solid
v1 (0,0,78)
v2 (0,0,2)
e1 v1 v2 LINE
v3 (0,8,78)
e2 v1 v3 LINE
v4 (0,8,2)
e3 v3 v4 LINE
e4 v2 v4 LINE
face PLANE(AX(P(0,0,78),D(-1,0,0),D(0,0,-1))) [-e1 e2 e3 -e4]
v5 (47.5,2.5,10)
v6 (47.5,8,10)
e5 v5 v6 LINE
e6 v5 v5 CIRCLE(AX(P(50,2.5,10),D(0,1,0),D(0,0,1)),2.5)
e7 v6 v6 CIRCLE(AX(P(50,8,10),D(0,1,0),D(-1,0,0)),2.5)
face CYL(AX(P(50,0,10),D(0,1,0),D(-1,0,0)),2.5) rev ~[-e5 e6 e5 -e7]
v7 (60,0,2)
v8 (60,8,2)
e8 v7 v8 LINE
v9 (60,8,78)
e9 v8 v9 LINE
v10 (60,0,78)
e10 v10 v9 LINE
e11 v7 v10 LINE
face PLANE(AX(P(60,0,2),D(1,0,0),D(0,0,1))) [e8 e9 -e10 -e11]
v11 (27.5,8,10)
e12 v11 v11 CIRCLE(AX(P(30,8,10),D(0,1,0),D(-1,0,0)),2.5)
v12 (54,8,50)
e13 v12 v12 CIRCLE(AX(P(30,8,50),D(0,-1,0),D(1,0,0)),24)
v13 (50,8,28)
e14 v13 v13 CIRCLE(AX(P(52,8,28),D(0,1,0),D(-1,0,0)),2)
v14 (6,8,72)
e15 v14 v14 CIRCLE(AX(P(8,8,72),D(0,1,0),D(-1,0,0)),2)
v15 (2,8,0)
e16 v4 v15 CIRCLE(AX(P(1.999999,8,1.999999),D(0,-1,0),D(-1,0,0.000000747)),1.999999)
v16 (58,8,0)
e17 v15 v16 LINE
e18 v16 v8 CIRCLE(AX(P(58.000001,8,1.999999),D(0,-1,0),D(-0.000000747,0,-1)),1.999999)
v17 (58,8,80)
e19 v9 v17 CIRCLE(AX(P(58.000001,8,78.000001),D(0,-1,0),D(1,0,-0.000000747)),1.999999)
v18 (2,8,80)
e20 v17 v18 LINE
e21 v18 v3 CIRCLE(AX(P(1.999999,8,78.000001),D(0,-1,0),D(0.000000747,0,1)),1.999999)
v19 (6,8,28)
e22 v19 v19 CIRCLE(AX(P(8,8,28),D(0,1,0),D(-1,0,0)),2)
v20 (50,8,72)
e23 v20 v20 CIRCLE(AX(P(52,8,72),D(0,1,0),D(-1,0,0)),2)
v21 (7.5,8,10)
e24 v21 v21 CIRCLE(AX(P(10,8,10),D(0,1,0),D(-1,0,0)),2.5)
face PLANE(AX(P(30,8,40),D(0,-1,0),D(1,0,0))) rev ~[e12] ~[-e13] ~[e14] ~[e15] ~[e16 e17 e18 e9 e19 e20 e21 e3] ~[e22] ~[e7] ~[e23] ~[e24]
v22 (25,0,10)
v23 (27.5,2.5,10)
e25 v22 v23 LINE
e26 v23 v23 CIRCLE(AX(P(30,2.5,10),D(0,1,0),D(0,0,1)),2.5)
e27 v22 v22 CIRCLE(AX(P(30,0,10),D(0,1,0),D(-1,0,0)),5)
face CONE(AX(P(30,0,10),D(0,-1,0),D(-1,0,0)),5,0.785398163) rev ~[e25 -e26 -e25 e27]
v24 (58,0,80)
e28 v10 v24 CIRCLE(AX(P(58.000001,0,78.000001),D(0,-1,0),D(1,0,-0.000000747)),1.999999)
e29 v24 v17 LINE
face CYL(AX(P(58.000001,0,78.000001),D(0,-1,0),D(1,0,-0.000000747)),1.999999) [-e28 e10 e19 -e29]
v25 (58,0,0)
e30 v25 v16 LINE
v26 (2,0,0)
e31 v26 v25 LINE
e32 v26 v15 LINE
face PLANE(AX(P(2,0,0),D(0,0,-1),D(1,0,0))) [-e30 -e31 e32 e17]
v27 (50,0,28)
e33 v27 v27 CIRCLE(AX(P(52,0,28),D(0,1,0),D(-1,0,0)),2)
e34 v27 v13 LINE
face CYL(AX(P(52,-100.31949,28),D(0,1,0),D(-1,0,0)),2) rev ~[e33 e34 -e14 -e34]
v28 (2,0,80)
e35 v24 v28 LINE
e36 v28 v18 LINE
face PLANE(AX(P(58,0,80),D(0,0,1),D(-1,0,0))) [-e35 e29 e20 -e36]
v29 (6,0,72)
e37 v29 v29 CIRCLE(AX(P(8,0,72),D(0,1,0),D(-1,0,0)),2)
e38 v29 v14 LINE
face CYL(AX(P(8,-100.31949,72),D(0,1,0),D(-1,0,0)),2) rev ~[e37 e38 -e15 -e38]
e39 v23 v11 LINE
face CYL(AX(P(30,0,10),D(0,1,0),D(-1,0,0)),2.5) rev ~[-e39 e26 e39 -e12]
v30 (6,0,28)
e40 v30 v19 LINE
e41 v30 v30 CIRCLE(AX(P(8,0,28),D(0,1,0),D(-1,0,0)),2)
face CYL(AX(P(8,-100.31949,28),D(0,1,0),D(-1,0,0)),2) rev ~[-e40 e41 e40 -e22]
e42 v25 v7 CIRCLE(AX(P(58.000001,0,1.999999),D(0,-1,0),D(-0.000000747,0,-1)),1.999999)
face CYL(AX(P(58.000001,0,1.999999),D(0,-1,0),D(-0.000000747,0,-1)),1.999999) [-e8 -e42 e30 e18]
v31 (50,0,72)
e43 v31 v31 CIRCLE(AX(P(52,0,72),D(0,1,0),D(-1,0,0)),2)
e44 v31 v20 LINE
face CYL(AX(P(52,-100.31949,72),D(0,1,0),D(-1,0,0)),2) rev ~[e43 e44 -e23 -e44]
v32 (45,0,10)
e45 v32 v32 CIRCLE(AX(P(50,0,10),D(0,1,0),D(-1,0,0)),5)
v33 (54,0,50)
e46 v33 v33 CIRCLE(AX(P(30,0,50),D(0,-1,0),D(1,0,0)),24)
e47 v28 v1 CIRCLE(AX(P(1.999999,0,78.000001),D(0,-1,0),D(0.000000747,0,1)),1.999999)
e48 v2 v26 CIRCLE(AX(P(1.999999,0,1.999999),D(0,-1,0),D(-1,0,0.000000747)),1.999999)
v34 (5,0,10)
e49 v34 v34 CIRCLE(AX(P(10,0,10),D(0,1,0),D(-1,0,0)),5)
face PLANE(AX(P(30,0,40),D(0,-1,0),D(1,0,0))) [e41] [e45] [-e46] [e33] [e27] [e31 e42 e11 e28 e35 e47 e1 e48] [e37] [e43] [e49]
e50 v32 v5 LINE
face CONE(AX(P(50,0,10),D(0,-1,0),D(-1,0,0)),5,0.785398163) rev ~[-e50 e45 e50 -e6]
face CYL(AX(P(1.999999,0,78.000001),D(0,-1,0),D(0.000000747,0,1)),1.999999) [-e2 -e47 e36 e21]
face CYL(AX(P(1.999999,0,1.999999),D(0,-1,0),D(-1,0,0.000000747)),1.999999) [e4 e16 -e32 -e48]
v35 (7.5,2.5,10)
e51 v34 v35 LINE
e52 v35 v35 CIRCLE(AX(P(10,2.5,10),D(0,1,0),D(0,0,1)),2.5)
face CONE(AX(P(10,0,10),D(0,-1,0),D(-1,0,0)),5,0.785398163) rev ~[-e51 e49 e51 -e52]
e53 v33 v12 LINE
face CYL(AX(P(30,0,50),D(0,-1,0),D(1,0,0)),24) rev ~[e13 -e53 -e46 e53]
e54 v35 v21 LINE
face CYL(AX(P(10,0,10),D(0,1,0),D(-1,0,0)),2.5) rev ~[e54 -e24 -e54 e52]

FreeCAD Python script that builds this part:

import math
import FreeCAD as App
import Part
import Sketcher
from FreeCAD import Vector

doc = App.newDocument("Part")
params = doc.addObject("Spreadsheet::Sheet", "Params")
for row, (alias, value) in enumerate([
    ("sketch1_diameter", "48 mm"),
    ("sketch1_radius", "1.999999 mm"),
    ("sketch1_width", "56 mm"),
    ("sketch1_height", "76 mm"),
    ("pad1_length", "8 mm"),
    ("sketch2_diameter", "5 mm"),
    ("hole_diameter", "5 mm"),
    ("hole_csink_diameter", "10 mm"),
    ("sketch3_diameter", "4 mm"),
    ("hole2_diameter", "4 mm"),
], start=1):
    params.set(f"A{row}", alias)
    params.set(f"B{row}", "=" + value)
    params.setAlias(f"B{row}", alias)

body = doc.addObject("PartDesign::Body", "Body")

# Sketch on XZ plane
sketch1 = body.newObject("Sketcher::SketchObject", "Sketch")
sketch1.AttachmentSupport = (doc.getObject("XZ_Plane"), [""])
sketch1.MapMode = "FlatFace"
sketch1.addGeometry([
    Part.ArcOfCircle(Part.Circle(Vector(2, 2, 0), Vector(0, 0, 1), 2), math.radians(180), math.radians(270)),  # 0
    Part.LineSegment(Vector(2, 0, 0), Vector(58, 0, 0)),  # 1
    Part.ArcOfCircle(Part.Circle(Vector(58, 2, 0), Vector(0, 0, 1), 2), math.radians(-90), math.radians(0)),  # 2
    Part.LineSegment(Vector(60, 2, 0), Vector(60, 78, 0)),  # 3
    Part.ArcOfCircle(Part.Circle(Vector(58, 78, 0), Vector(0, 0, 1), 2), math.radians(0), math.radians(90)),  # 4
    Part.LineSegment(Vector(58, 80, 0), Vector(2, 80, 0)),  # 5
    Part.ArcOfCircle(Part.Circle(Vector(2, 78, 0), Vector(0, 0, 1), 2), math.radians(90), math.radians(180)),  # 6
    Part.LineSegment(Vector(0, 78, 0), Vector(0, 2, 0)),  # 7
    Part.Circle(Vector(30, 50, 0), Vector(0, 0, 1), 24),  # 8
], False)
sketch1.addConstraint([
    Sketcher.Constraint("Tangent", 0, 2, 1, 1),
    Sketcher.Constraint("Tangent", 1, 2, 2, 1),
    Sketcher.Constraint("Tangent", 2, 2, 3, 1),
    Sketcher.Constraint("Tangent", 3, 2, 4, 1),
    Sketcher.Constraint("Tangent", 4, 2, 5, 1),
    Sketcher.Constraint("Tangent", 5, 2, 6, 1),
    Sketcher.Constraint("Tangent", 6, 2, 7, 1),
    Sketcher.Constraint("Tangent", 7, 2, 0, 1),
    Sketcher.Constraint("Horizontal", 1),
    Sketcher.Constraint("Vertical", 3),
    Sketcher.Constraint("Horizontal", 5),
    Sketcher.Constraint("Vertical", 7),
    Sketcher.Constraint("Equal", 0, 2),
    Sketcher.Constraint("Equal", 2, 4),
    Sketcher.Constraint("Equal", 4, 6),
    Sketcher.Constraint("PointOnObject", 0, 2, -1),
    Sketcher.Constraint("PointOnObject", 6, 2, -2),
    Sketcher.Constraint("Diameter", 8, 48.0),
    Sketcher.Constraint("Radius", 0, 1.999999),
    Sketcher.Constraint("DistanceX", 1, 1, 1, 2, 56.0),
    Sketcher.Constraint("DistanceY", 3, 1, 3, 2, 76.0),
    Sketcher.Constraint("DistanceX", -1, 1, 8, 3, 30.0),
    Sketcher.Constraint("DistanceY", -1, 1, 8, 3, 50.0),
])
sketch1.setExpression("Constraints[17]", "Params.sketch1_diameter")
sketch1.setExpression("Constraints[18]", "Params.sketch1_radius")
sketch1.setExpression("Constraints[19]", "Params.sketch1_width")
sketch1.setExpression("Constraints[20]", "Params.sketch1_height")
pad1 = body.newObject("PartDesign::Pad", "Pad")
pad1.Profile = sketch1
pad1.setExpression("Length", "Params.pad1_length")
pad1.Reversed = True

# Sketch on XZ plane
sketch2 = body.newObject("Sketcher::SketchObject", "Sketch001")
sketch2.AttachmentSupport = (doc.getObject("XZ_Plane"), [""])
sketch2.MapMode = "FlatFace"
sketch2.addGeometry([
    Part.Circle(Vector(10, 10, 0), Vector(0, 0, 1), 2.5),
    Part.Circle(Vector(30, 10, 0), Vector(0, 0, 1), 2.5),
    Part.Circle(Vector(50, 10, 0), Vector(0, 0, 1), 2.5),
], False)
sketch2.addConstraint([
    Sketcher.Constraint("Equal", 0, 1),
    Sketcher.Constraint("Equal", 1, 2),
    Sketcher.Constraint("Horizontal", 0, 3, 1, 3),
    Sketcher.Constraint("Horizontal", 1, 3, 2, 3),
    Sketcher.Constraint("Diameter", 0, 5.0),
    Sketcher.Constraint("DistanceX", -1, 1, 0, 3, 10.0),
    Sketcher.Constraint("DistanceY", -1, 1, 0, 3, 10.0),
    Sketcher.Constraint("DistanceX", -1, 1, 1, 3, 30.0),
    Sketcher.Constraint("DistanceX", -1, 1, 2, 3, 50.0),
])
sketch2.setExpression("Constraints[4]", "Params.sketch2_diameter")
doc.recompute()
hole = body.newObject("PartDesign::Hole", "Hole")
hole.Profile = sketch2
hole.ThreadType = "None"
hole.setExpression("Diameter", "Params.hole_diameter")
hole.DepthType = "ThroughAll"
hole.HoleCutType = "Countersink"
hole.setExpression("HoleCutDiameter", "Params.hole_csink_diameter")
hole.HoleCutCountersinkAngle = 90

# Sketch on XZ plane
sketch3 = body.newObject("Sketcher::SketchObject", "Sketch002")
sketch3.AttachmentSupport = (doc.getObject("XZ_Plane"), [""])
sketch3.MapMode = "FlatFace"
sketch3.addGeometry([
    Part.Circle(Vector(8, 72, 0), Vector(0, 0, 1), 2),
    Part.Circle(Vector(52, 72, 0), Vector(0, 0, 1), 2),
    Part.Circle(Vector(52, 28, 0), Vector(0, 0, 1), 2),
    Part.Circle(Vector(8, 28, 0), Vector(0, 0, 1), 2),
], False)
sketch3.addConstraint([
    Sketcher.Constraint("Equal", 0, 1),
    Sketcher.Constraint("Equal", 1, 2),
    Sketcher.Constraint("Equal", 2, 3),
    Sketcher.Constraint("Horizontal", 0, 3, 1, 3),
    Sketcher.Constraint("Horizontal", 2, 3, 3, 3),
    Sketcher.Constraint("Vertical", 1, 3, 2, 3),
    Sketcher.Constraint("Vertical", 0, 3, 3, 3),
    Sketcher.Constraint("Diameter", 0, 4.0),
    Sketcher.Constraint("DistanceX", -1, 1, 0, 3, 8.0),
    Sketcher.Constraint("DistanceY", -1, 1, 0, 3, 72.0),
    Sketcher.Constraint("DistanceX", -1, 1, 1, 3, 52.0),
    Sketcher.Constraint("DistanceY", -1, 1, 2, 3, 28.0),
])
sketch3.setExpression("Constraints[7]", "Params.sketch3_diameter")
doc.recompute()
hole2 = body.newObject("PartDesign::Hole", "Hole001")
hole2.Profile = sketch3
hole2.ThreadType = "None"
hole2.setExpression("Diameter", "Params.hole2_diameter")
hole2.DepthType = "ThroughAll"

doc.recompute()
